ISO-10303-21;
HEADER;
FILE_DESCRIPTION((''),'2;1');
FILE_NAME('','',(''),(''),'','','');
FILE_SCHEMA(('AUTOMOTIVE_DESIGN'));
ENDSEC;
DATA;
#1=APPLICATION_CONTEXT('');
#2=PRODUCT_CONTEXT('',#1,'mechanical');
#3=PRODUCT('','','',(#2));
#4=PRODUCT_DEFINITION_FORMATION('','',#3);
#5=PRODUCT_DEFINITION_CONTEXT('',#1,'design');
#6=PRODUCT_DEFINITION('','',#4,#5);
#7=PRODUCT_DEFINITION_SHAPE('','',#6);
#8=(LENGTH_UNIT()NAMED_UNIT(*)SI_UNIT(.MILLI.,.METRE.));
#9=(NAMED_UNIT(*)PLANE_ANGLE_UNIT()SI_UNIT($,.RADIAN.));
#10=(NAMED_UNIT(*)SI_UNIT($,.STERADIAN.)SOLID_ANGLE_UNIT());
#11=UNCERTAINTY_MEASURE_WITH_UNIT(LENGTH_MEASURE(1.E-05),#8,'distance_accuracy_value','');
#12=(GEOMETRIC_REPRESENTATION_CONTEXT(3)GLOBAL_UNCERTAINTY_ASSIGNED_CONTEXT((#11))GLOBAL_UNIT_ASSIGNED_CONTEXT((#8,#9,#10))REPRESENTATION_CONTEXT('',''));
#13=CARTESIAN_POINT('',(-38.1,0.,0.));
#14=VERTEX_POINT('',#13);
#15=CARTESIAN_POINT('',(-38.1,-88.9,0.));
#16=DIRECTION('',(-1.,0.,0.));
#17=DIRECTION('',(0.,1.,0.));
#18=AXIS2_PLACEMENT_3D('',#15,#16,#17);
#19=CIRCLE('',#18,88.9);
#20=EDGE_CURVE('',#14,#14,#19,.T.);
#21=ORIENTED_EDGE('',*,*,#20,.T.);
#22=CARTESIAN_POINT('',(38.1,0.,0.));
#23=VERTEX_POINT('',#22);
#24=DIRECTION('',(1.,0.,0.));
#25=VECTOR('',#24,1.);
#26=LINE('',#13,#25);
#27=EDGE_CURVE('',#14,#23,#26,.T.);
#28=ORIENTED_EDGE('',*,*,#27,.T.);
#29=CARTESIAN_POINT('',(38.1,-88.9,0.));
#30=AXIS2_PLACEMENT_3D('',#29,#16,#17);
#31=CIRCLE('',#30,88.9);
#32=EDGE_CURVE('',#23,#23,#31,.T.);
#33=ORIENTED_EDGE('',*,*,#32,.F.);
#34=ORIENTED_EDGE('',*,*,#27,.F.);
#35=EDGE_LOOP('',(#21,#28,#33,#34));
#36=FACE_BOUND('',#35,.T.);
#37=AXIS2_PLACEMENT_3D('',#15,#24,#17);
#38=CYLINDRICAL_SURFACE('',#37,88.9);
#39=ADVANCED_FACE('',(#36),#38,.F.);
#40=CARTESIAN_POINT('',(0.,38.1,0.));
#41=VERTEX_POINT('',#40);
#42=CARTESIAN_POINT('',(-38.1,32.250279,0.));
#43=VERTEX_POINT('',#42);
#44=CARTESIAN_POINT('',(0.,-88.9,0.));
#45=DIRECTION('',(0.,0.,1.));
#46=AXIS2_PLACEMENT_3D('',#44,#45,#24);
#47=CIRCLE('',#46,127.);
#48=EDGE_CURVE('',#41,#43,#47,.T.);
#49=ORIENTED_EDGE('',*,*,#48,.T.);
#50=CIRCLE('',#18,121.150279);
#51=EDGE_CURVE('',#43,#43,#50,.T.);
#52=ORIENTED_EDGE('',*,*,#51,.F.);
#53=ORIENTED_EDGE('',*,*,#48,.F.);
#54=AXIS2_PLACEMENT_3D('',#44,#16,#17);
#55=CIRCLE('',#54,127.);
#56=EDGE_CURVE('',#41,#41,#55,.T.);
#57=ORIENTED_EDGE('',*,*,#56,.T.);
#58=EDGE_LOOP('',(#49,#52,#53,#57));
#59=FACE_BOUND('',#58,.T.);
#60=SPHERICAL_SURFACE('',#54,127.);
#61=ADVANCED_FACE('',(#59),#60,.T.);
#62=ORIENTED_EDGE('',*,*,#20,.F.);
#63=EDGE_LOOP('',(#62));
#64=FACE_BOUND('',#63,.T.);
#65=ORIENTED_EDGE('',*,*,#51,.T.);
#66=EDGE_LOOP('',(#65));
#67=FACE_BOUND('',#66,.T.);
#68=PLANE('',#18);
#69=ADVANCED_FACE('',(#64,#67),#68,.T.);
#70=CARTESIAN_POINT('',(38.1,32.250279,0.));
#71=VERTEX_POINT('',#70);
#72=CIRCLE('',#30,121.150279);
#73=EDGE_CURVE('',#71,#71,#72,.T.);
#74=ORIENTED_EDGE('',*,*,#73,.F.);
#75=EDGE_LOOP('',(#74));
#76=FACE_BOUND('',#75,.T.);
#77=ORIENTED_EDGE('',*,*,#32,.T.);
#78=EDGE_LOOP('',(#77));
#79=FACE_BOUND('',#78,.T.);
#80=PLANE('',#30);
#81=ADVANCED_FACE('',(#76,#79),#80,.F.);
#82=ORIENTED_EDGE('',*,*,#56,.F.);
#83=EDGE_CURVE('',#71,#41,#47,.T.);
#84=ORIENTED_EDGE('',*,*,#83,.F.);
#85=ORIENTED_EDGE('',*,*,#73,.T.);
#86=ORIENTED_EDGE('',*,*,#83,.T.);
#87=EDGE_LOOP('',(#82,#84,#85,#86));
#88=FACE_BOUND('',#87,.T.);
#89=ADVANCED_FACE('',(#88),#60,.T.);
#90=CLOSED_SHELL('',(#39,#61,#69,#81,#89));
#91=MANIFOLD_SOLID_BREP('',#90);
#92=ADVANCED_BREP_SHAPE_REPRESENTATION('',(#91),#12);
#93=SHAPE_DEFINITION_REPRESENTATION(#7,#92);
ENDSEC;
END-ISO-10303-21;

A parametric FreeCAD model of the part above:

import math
import FreeCAD as App
import Part
import Sketcher

V = App.Vector
Q = App.Units.Quantity

doc = App.newDocument("Part")
body = doc.addObject("PartDesign::Body", "Body")

sketch1 = body.newObject("Sketcher::SketchObject", "Sketch")
sketch1.AttachmentSupport = (doc.getObject("XY_Plane"), [""])
sketch1.MapMode = "FlatFace"
sketch1.addGeometry(Part.LineSegment(V(-38, 32, 0), V(-38, 0, 0)), False)
sketch1.addGeometry(Part.LineSegment(V(-38, 0, 0), V(38, 0, 0)), False)
sketch1.addGeometry(Part.LineSegment(V(38, 0, 0), V(38, 32, 0)), False)
sketch1.addGeometry(Part.ArcOfCircle(Part.Circle(V(0, -89, 0), V(0, 0, 1), 127), math.radians(73), math.radians(107)), False)
sketch1.addGeometry(Part.LineSegment(V(38, -89, 0), V(-38, -89, 0)), True)
sketch1.addConstraint(Sketcher.Constraint("Coincident", 0, 2, 1, 1))
sketch1.addConstraint(Sketcher.Constraint("Coincident", 1, 2, 2, 1))
sketch1.addConstraint(Sketcher.Constraint("Coincident", 2, 2, 3, 1))
sketch1.addConstraint(Sketcher.Constraint("Coincident", 3, 2, 0, 1))
sketch1.addConstraint(Sketcher.Constraint("Vertical", 0))
sketch1.addConstraint(Sketcher.Constraint("Horizontal", 1))
sketch1.addConstraint(Sketcher.Constraint("Vertical", 2))
sketch1.addConstraint(Sketcher.Constraint("Horizontal", 4))
sketch1.addConstraint(Sketcher.Constraint("Symmetric", 0, 2, 1, 2, -1, 1))
sketch1.addConstraint(Sketcher.Constraint("PointOnObject", 3, 3, -2))
sketch1.addConstraint(Sketcher.Constraint("Horizontal", 3, 3, 4, 1))
sketch1.addConstraint(Sketcher.Constraint("Vertical", 2, 2, 4, 1))
sketch1.addConstraint(Sketcher.Constraint("Vertical", 3, 2, 4, 2))
sketch1.addConstraint(Sketcher.Constraint("Radius", 3, Q("5 in")))
sketch1.addConstraint(Sketcher.Constraint("DistanceX", 1, 1, 1, 2, Q("3 in")))
sketch1.addConstraint(Sketcher.Constraint("DistanceY", 3, 3, -1, 1, Q("3.5 in")))
revolution = body.newObject("PartDesign::Revolution", "Revolution")
revolution.Profile = sketch1
revolution.ReferenceAxis = (sketch1, ["Axis0"])
revolution.Angle = 360

doc.recompute()
